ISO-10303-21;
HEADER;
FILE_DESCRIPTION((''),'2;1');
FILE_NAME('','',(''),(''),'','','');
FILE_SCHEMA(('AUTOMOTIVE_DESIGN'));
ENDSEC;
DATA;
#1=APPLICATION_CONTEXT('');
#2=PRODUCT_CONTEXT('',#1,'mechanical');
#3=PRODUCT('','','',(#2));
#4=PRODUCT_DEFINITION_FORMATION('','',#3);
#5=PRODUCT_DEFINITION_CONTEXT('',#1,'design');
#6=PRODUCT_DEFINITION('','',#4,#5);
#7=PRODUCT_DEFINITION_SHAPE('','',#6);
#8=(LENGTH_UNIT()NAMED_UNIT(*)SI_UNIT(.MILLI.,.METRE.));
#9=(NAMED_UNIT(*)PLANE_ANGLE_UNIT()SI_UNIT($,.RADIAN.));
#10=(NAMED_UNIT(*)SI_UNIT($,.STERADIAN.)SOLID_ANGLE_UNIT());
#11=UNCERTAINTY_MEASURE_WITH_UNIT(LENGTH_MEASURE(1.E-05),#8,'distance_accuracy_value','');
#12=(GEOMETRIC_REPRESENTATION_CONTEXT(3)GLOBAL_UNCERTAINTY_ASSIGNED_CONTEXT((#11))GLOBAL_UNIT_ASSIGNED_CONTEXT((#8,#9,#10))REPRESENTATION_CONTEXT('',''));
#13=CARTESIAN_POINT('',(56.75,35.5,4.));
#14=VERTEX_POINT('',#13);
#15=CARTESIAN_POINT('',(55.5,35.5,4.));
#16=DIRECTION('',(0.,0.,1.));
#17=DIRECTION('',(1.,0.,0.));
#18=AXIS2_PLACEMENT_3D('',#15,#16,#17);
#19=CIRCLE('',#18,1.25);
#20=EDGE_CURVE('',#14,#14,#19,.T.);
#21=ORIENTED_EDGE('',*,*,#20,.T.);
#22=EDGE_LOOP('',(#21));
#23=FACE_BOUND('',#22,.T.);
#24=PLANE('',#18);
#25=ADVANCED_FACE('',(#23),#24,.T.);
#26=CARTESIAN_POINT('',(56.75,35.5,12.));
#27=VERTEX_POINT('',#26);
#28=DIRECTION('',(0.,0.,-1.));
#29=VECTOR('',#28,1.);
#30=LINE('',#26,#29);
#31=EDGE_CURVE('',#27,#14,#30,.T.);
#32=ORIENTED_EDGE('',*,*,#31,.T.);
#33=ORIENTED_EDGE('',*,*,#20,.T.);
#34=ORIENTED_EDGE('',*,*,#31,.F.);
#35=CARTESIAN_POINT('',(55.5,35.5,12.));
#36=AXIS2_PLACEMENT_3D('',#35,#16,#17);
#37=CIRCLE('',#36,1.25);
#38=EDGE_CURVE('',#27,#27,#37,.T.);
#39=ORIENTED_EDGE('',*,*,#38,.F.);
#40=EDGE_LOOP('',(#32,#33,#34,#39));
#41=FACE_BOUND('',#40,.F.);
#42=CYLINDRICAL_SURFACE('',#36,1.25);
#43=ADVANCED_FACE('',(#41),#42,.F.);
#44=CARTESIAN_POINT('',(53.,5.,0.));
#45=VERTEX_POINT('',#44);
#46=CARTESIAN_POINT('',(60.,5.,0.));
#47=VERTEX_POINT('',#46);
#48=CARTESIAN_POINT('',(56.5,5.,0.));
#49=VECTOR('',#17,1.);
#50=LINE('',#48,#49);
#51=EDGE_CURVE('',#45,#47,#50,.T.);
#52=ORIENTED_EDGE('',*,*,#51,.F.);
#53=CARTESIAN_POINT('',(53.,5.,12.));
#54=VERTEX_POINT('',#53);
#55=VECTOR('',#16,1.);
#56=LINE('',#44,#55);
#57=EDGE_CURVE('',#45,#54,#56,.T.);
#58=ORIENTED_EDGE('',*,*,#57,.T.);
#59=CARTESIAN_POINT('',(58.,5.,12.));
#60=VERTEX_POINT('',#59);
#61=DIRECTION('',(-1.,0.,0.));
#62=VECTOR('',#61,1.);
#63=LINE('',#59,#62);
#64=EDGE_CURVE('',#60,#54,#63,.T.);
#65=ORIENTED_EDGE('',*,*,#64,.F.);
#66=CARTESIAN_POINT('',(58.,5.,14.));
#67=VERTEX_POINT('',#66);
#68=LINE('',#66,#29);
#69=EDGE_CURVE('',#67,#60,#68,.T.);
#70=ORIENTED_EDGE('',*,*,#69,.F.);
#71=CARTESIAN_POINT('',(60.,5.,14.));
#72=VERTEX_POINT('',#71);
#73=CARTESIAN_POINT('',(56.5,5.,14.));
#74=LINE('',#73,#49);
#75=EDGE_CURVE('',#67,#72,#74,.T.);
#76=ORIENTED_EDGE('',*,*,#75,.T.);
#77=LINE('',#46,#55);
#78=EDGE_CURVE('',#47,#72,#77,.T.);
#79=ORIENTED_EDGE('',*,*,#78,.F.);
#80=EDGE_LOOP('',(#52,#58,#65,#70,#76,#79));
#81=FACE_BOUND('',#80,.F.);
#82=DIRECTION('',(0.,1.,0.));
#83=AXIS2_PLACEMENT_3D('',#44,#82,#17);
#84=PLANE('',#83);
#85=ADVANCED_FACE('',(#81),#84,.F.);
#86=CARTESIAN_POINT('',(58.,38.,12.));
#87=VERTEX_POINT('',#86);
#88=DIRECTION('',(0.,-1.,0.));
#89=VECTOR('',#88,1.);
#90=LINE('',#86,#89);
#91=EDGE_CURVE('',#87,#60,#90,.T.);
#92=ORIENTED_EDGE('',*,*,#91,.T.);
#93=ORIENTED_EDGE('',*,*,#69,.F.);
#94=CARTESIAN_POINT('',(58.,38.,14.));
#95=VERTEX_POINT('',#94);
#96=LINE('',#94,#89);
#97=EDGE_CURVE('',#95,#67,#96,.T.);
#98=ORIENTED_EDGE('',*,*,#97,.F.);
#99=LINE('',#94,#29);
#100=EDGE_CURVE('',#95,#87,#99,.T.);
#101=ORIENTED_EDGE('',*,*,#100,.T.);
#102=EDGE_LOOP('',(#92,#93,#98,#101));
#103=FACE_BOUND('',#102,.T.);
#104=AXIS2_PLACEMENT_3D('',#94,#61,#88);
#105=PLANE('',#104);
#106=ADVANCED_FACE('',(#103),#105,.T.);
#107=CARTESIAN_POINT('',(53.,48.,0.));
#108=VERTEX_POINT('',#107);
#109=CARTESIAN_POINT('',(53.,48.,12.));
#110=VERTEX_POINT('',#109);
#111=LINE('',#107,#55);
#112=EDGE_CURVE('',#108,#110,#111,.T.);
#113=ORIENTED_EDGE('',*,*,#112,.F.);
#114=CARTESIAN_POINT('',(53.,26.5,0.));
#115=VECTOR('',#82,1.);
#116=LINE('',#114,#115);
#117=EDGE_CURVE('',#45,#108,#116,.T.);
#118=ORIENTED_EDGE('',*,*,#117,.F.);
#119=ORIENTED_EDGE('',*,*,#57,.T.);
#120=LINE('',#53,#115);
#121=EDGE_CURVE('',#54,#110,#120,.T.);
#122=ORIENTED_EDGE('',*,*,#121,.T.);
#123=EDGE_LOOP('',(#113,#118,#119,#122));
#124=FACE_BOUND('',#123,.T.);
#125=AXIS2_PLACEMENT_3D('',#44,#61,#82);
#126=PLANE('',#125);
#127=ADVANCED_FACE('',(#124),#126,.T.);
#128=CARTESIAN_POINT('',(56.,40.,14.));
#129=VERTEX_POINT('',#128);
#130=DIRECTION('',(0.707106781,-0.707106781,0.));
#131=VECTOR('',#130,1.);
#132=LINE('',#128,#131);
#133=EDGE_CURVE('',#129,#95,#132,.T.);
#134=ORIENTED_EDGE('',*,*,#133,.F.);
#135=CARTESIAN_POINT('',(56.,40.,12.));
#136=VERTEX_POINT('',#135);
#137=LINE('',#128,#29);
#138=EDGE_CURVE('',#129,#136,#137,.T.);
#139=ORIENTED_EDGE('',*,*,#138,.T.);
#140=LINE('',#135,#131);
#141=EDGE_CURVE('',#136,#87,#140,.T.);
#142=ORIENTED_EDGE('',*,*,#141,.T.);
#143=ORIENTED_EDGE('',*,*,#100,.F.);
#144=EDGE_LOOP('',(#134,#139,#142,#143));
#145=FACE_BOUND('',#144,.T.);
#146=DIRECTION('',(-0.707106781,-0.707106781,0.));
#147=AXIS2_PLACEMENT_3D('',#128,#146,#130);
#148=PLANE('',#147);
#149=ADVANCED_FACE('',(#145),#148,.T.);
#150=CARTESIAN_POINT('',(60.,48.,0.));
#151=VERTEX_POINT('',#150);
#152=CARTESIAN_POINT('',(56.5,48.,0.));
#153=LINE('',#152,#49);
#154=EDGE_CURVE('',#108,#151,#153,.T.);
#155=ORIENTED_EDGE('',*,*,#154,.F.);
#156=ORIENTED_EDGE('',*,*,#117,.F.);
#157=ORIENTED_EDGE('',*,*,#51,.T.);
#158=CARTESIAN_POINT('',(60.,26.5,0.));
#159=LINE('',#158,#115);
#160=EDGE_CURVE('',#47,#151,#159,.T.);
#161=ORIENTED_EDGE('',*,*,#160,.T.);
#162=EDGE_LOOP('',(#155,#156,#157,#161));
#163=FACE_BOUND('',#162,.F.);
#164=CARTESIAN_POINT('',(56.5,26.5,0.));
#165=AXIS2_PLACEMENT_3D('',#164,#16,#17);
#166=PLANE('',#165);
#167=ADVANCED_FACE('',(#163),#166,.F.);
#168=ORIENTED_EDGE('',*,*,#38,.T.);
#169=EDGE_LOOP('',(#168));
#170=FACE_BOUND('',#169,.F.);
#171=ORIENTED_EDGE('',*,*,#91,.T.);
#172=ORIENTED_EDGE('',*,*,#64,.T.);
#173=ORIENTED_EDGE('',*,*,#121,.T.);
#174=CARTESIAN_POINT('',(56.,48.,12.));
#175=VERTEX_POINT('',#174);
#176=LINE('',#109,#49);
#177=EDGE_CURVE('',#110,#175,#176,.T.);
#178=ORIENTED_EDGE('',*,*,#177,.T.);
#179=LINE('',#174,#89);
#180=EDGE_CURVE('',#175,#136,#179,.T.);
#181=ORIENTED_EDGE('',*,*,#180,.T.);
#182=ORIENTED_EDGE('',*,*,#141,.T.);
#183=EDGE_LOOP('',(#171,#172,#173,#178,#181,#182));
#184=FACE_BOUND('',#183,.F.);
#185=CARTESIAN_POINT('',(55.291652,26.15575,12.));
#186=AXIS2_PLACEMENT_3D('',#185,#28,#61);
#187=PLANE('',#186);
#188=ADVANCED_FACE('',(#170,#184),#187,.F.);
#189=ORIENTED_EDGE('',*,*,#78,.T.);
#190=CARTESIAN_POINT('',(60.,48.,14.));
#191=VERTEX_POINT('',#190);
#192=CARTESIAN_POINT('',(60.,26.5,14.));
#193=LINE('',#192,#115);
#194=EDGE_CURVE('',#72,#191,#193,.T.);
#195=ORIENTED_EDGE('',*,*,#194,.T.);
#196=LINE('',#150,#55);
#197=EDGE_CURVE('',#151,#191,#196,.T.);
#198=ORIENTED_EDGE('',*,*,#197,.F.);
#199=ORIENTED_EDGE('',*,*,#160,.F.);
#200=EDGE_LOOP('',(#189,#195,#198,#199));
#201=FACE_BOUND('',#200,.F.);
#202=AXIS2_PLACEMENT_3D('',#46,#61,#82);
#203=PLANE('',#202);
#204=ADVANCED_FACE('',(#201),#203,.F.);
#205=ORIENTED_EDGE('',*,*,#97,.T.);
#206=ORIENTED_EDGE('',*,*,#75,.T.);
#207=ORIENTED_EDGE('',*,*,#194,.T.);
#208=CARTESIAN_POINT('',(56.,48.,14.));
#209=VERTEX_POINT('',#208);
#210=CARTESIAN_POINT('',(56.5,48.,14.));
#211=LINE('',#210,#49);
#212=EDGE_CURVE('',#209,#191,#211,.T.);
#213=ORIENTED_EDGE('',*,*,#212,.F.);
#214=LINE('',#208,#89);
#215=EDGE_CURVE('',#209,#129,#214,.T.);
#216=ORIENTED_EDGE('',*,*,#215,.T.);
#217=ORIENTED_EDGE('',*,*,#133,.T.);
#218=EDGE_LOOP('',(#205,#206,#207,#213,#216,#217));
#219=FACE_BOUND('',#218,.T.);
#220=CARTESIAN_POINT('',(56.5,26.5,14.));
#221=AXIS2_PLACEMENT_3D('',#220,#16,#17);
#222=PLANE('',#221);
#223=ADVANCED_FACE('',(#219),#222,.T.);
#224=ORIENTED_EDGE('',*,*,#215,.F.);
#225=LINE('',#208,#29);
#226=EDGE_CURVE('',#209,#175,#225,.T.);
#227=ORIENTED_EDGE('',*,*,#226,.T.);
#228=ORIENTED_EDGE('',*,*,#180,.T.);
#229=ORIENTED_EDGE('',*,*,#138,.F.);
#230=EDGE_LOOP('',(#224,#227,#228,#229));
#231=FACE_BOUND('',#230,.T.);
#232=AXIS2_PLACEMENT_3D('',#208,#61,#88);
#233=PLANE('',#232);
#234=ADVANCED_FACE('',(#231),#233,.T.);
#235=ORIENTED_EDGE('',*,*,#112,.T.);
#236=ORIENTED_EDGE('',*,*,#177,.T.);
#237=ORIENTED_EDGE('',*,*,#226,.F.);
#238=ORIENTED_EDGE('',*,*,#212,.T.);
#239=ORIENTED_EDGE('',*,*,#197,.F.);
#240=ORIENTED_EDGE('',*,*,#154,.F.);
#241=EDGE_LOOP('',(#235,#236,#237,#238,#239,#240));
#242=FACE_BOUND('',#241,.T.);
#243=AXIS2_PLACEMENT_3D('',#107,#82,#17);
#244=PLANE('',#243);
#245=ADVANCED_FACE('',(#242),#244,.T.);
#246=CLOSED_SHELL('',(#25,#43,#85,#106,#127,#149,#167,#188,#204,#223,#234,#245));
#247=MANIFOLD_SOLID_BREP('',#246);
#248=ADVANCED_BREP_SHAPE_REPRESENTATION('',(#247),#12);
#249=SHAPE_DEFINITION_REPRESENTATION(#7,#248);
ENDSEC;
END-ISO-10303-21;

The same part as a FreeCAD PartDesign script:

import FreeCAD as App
import Part
import Sketcher
from FreeCAD import Vector

doc = App.newDocument("Part")
body = doc.addObject("PartDesign::Body", "Body")

sketch1 = doc.addObject("Sketcher::SketchObject", "Sketch")
body.addObject(sketch1)
sketch1.AttachmentSupport = (doc.XY_Plane, [""])
sketch1.MapMode = "FlatFace"
sketch1.addGeometry([
    Part.LineSegment(Vector(53, 48, 0), Vector(53, 5, 0)),
    Part.LineSegment(Vector(53, 5, 0), Vector(60, 5, 0)),
    Part.LineSegment(Vector(60, 5, 0), Vector(60, 48, 0)),
    Part.LineSegment(Vector(60, 48, 0), Vector(53, 48, 0)),
], False)
sketch1.addConstraint([
    Sketcher.Constraint("Coincident", 0, 2, 1, 1),
    Sketcher.Constraint("Coincident", 1, 2, 2, 1),
    Sketcher.Constraint("Coincident", 2, 2, 3, 1),
    Sketcher.Constraint("Coincident", 3, 2, 0, 1),
    Sketcher.Constraint("Vertical", 0),
    Sketcher.Constraint("Horizontal", 1),
    Sketcher.Constraint("Vertical", 2),
    Sketcher.Constraint("Horizontal", 3),
    Sketcher.Constraint("DistanceX", 1, 1, 1, 2, 7.0),
    Sketcher.Constraint("DistanceY", 0, 2, 0, 1, 43.0),
    Sketcher.Constraint("DistanceX", -1, 1, 0, 2, 53.0),
    Sketcher.Constraint("DistanceY", -1, 1, 0, 2, 5.0),
])
pad1 = doc.addObject("PartDesign::Pad", "Pad")
body.addObject(pad1)
pad1.Profile = sketch1
pad1.Length = 14

sketch2 = doc.addObject("Sketcher::SketchObject", "Sketch001")
body.addObject(sketch2)
sketch2.AttachmentSupport = (doc.XY_Plane, [""])
sketch2.MapMode = "FlatFace"
sketch2.AttachmentOffset = App.Placement(Vector(0, 0, 14), App.Rotation())
sketch2.addGeometry([
    Part.LineSegment(Vector(56, 40, 0), Vector(56, 48, 0)),
    Part.LineSegment(Vector(56, 48, 0), Vector(53, 48, 0)),
    Part.LineSegment(Vector(53, 48, 0), Vector(53, 5, 0)),
    Part.LineSegment(Vector(53, 5, 0), Vector(58, 5, 0)),
    Part.LineSegment(Vector(58, 5, 0), Vector(58, 38, 0)),
    Part.LineSegment(Vector(58, 38, 0), Vector(56, 40, 0)),
], False)
sketch2.addConstraint([
    Sketcher.Constraint("Coincident", 0, 2, 1, 1),
    Sketcher.Constraint("Coincident", 1, 2, 2, 1),
    Sketcher.Constraint("Coincident", 2, 2, 3, 1),
    Sketcher.Constraint("Coincident", 3, 2, 4, 1),
    Sketcher.Constraint("Coincident", 4, 2, 5, 1),
    Sketcher.Constraint("Coincident", 5, 2, 0, 1),
    Sketcher.Constraint("Vertical", 0),
    Sketcher.Constraint("Horizontal", 1),
    Sketcher.Constraint("Vertical", 2),
    Sketcher.Constraint("Horizontal", 3),
    Sketcher.Constraint("Vertical", 4),
    Sketcher.Constraint("DistanceX", 1, 2, 1, 1, 3.0),
    Sketcher.Constraint("DistanceX", 3, 1, 3, 2, 5.0),
    Sketcher.Constraint("DistanceY", 0, 1, 0, 2, 8.0),
    Sketcher.Constraint("DistanceY", 2, 2, 2, 1, 43.0),
    Sketcher.Constraint("DistanceY", 4, 1, 4, 2, 33.0),
    Sketcher.Constraint("DistanceX", -1, 1, 0, 2, 56.0),
    Sketcher.Constraint("DistanceY", -1, 1, 0, 2, 48.0),
])
pocket1 = doc.addObject("PartDesign::Pocket", "Pocket")
body.addObject(pocket1)
pocket1.Profile = sketch2
pocket1.Length = 2

sketch3 = doc.addObject("Sketcher::SketchObject", "Sketch002")
body.addObject(sketch3)
sketch3.AttachmentSupport = (doc.XY_Plane, [""])
sketch3.MapMode = "FlatFace"
sketch3.AttachmentOffset = App.Placement(Vector(0, 0, 12), App.Rotation())
sketch3.addGeometry(Part.Circle(Vector(55.5, 35.5, 0), Vector(0, 0, 1), 1.25), False)
sketch3.addConstraint([
    Sketcher.Constraint("Diameter", 0, 2.5),
    Sketcher.Constraint("DistanceX", -1, 1, 0, 3, 55.5),
    Sketcher.Constraint("DistanceY", -1, 1, 0, 3, 35.5),
])
pocket2 = doc.addObject("PartDesign::Pocket", "Pocket001")
body.addObject(pocket2)
pocket2.Profile = sketch3
pocket2.Length = 8

doc.recompute()
